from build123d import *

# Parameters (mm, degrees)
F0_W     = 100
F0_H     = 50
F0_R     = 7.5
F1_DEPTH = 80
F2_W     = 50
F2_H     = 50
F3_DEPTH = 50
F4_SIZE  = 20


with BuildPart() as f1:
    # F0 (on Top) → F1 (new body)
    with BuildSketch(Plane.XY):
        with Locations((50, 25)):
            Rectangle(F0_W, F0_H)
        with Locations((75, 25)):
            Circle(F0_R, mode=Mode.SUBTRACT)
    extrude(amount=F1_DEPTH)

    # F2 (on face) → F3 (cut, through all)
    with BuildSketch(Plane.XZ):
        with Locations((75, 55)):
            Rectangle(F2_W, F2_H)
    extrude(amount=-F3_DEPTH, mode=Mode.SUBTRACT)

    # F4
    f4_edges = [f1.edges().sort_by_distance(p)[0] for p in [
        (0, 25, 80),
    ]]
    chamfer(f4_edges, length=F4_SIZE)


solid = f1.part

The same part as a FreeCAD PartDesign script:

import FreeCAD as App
import Part
import Sketcher
from FreeCAD import Vector
Q = App.Units.Quantity


def edges_at(feature, points):
    """Names of the edges that pass closest to the given points."""
    edges = feature.Shape.Edges
    near = lambda p: min(range(len(edges)), key=lambda i: edges[i].distToShape(Part.Vertex(*p))[0])
    return sorted({f"Edge{near(p) + 1}" for p in points})


def add_polygon(sketch, points):
    """Adds a closed chain of lines whose ends are joined by coincident constraints."""
    first, n = sketch.GeometryCount, len(points)
    for a, b in zip(points, points[1:] + points[:1]):
        sketch.addGeometry(Part.LineSegment(App.Vector(*a, 0), App.Vector(*b, 0)), False)
    for i in range(n):
        sketch.addConstraint(Sketcher.Constraint("Coincident", first + i, 2, first + (i + 1) % n, 1))

doc = App.newDocument("Part")
params = doc.addObject("Spreadsheet::Sheet", "Params")
for row, (alias, value) in enumerate([
    ("sketch1_diameter", "15 mm"),
    ("sketch1_width", "100 mm"),
    ("sketch1_height", "50 mm"),
    ("pad1_length", "80 mm"),
    ("sketch2_width", "50 mm"),
    ("chamfer_size", "20 mm"),
], start=1):
    params.set(f"A{row}", alias)
    params.set(f"B{row}", "=" + value)
    params.setAlias(f"B{row}", alias)

body = doc.addObject("PartDesign::Body", "Body")

sketch1 = doc.addObject("Sketcher::SketchObject", "Sketch")
body.addObject(sketch1)
sketch1.AttachmentSupport = (doc.XY_Plane, [""])
sketch1.MapMode = "FlatFace"
add_polygon(sketch1, [(0, 50), (0, 0), (100, 0), (100, 50)])
sketch1.addGeometry(Part.Circle(Vector(75, 25, 0), Vector(0, 0, 1), 8), False)
sketch1.addConstraint([
    Sketcher.Constraint("Vertical", 0),
    Sketcher.Constraint("Horizontal", 1),
    Sketcher.Constraint("Vertical", 2),
    Sketcher.Constraint("Horizontal", 3),
    Sketcher.Constraint("Coincident", 0, 2, -1, 1),
    Sketcher.Constraint("Diameter", 4, Q("15 mm")),
    Sketcher.Constraint("DistanceX", 1, 1, 1, 2, Q("100 mm")),
    Sketcher.Constraint("DistanceY", 0, 2, 0, 1, Q("50 mm")),
    Sketcher.Constraint("DistanceX", -1, 1, 4, 3, Q("75 mm")),
    Sketcher.Constraint("DistanceY", -1, 1, 4, 3, Q("25 mm")),
])
sketch1.setExpression("Constraints[9]", "Params.sketch1_diameter")
sketch1.setExpression("Constraints[10]", "Params.sketch1_width")
sketch1.setExpression("Constraints[11]", "Params.sketch1_height")
pad1 = doc.addObject("PartDesign::Pad", "Pad")
body.addObject(pad1)
pad1.Profile = sketch1
pad1.setExpression("Length", "Params.pad1_length")

sketch2 = doc.addObject("Sketcher::SketchObject", "Sketch001")
body.addObject(sketch2)
sketch2.AttachmentSupport = (doc.XZ_Plane, [""])
sketch2.MapMode = "FlatFace"
add_polygon(sketch2, [(50, 80), (50, 30), (100, 30), (100, 80)])
sketch2.addConstraint([
    Sketcher.Constraint("Vertical", 0),
    Sketcher.Constraint("Horizontal", 1),
    Sketcher.Constraint("Vertical", 2),
    Sketcher.Constraint("Horizontal", 3),
    Sketcher.Constraint("Equal", 3, 0),
    Sketcher.Constraint("DistanceX", 1, 1, 1, 2, Q("50 mm")),
    Sketcher.Constraint("DistanceX", -1, 1, 0, 2, Q("50 mm")),
    Sketcher.Constraint("DistanceY", -1, 1, 0, 2, Q("30 mm")),
])
sketch2.setExpression("Constraints[9]", "Params.sketch2_width")
pocket1 = doc.addObject("PartDesign::Pocket", "Pocket")
body.addObject(pocket1)
pocket1.Profile = sketch2
pocket1.Type = "ThroughAll"
doc.recompute()

chamfer = doc.addObject("PartDesign::Chamfer", "Chamfer")
body.addObject(chamfer)
chamfer.Base = (pocket1, edges_at(pocket1, [(0, 25, 80)]))
chamfer.setExpression("Size", "Params.chamfer_size")

doc.recompute()
